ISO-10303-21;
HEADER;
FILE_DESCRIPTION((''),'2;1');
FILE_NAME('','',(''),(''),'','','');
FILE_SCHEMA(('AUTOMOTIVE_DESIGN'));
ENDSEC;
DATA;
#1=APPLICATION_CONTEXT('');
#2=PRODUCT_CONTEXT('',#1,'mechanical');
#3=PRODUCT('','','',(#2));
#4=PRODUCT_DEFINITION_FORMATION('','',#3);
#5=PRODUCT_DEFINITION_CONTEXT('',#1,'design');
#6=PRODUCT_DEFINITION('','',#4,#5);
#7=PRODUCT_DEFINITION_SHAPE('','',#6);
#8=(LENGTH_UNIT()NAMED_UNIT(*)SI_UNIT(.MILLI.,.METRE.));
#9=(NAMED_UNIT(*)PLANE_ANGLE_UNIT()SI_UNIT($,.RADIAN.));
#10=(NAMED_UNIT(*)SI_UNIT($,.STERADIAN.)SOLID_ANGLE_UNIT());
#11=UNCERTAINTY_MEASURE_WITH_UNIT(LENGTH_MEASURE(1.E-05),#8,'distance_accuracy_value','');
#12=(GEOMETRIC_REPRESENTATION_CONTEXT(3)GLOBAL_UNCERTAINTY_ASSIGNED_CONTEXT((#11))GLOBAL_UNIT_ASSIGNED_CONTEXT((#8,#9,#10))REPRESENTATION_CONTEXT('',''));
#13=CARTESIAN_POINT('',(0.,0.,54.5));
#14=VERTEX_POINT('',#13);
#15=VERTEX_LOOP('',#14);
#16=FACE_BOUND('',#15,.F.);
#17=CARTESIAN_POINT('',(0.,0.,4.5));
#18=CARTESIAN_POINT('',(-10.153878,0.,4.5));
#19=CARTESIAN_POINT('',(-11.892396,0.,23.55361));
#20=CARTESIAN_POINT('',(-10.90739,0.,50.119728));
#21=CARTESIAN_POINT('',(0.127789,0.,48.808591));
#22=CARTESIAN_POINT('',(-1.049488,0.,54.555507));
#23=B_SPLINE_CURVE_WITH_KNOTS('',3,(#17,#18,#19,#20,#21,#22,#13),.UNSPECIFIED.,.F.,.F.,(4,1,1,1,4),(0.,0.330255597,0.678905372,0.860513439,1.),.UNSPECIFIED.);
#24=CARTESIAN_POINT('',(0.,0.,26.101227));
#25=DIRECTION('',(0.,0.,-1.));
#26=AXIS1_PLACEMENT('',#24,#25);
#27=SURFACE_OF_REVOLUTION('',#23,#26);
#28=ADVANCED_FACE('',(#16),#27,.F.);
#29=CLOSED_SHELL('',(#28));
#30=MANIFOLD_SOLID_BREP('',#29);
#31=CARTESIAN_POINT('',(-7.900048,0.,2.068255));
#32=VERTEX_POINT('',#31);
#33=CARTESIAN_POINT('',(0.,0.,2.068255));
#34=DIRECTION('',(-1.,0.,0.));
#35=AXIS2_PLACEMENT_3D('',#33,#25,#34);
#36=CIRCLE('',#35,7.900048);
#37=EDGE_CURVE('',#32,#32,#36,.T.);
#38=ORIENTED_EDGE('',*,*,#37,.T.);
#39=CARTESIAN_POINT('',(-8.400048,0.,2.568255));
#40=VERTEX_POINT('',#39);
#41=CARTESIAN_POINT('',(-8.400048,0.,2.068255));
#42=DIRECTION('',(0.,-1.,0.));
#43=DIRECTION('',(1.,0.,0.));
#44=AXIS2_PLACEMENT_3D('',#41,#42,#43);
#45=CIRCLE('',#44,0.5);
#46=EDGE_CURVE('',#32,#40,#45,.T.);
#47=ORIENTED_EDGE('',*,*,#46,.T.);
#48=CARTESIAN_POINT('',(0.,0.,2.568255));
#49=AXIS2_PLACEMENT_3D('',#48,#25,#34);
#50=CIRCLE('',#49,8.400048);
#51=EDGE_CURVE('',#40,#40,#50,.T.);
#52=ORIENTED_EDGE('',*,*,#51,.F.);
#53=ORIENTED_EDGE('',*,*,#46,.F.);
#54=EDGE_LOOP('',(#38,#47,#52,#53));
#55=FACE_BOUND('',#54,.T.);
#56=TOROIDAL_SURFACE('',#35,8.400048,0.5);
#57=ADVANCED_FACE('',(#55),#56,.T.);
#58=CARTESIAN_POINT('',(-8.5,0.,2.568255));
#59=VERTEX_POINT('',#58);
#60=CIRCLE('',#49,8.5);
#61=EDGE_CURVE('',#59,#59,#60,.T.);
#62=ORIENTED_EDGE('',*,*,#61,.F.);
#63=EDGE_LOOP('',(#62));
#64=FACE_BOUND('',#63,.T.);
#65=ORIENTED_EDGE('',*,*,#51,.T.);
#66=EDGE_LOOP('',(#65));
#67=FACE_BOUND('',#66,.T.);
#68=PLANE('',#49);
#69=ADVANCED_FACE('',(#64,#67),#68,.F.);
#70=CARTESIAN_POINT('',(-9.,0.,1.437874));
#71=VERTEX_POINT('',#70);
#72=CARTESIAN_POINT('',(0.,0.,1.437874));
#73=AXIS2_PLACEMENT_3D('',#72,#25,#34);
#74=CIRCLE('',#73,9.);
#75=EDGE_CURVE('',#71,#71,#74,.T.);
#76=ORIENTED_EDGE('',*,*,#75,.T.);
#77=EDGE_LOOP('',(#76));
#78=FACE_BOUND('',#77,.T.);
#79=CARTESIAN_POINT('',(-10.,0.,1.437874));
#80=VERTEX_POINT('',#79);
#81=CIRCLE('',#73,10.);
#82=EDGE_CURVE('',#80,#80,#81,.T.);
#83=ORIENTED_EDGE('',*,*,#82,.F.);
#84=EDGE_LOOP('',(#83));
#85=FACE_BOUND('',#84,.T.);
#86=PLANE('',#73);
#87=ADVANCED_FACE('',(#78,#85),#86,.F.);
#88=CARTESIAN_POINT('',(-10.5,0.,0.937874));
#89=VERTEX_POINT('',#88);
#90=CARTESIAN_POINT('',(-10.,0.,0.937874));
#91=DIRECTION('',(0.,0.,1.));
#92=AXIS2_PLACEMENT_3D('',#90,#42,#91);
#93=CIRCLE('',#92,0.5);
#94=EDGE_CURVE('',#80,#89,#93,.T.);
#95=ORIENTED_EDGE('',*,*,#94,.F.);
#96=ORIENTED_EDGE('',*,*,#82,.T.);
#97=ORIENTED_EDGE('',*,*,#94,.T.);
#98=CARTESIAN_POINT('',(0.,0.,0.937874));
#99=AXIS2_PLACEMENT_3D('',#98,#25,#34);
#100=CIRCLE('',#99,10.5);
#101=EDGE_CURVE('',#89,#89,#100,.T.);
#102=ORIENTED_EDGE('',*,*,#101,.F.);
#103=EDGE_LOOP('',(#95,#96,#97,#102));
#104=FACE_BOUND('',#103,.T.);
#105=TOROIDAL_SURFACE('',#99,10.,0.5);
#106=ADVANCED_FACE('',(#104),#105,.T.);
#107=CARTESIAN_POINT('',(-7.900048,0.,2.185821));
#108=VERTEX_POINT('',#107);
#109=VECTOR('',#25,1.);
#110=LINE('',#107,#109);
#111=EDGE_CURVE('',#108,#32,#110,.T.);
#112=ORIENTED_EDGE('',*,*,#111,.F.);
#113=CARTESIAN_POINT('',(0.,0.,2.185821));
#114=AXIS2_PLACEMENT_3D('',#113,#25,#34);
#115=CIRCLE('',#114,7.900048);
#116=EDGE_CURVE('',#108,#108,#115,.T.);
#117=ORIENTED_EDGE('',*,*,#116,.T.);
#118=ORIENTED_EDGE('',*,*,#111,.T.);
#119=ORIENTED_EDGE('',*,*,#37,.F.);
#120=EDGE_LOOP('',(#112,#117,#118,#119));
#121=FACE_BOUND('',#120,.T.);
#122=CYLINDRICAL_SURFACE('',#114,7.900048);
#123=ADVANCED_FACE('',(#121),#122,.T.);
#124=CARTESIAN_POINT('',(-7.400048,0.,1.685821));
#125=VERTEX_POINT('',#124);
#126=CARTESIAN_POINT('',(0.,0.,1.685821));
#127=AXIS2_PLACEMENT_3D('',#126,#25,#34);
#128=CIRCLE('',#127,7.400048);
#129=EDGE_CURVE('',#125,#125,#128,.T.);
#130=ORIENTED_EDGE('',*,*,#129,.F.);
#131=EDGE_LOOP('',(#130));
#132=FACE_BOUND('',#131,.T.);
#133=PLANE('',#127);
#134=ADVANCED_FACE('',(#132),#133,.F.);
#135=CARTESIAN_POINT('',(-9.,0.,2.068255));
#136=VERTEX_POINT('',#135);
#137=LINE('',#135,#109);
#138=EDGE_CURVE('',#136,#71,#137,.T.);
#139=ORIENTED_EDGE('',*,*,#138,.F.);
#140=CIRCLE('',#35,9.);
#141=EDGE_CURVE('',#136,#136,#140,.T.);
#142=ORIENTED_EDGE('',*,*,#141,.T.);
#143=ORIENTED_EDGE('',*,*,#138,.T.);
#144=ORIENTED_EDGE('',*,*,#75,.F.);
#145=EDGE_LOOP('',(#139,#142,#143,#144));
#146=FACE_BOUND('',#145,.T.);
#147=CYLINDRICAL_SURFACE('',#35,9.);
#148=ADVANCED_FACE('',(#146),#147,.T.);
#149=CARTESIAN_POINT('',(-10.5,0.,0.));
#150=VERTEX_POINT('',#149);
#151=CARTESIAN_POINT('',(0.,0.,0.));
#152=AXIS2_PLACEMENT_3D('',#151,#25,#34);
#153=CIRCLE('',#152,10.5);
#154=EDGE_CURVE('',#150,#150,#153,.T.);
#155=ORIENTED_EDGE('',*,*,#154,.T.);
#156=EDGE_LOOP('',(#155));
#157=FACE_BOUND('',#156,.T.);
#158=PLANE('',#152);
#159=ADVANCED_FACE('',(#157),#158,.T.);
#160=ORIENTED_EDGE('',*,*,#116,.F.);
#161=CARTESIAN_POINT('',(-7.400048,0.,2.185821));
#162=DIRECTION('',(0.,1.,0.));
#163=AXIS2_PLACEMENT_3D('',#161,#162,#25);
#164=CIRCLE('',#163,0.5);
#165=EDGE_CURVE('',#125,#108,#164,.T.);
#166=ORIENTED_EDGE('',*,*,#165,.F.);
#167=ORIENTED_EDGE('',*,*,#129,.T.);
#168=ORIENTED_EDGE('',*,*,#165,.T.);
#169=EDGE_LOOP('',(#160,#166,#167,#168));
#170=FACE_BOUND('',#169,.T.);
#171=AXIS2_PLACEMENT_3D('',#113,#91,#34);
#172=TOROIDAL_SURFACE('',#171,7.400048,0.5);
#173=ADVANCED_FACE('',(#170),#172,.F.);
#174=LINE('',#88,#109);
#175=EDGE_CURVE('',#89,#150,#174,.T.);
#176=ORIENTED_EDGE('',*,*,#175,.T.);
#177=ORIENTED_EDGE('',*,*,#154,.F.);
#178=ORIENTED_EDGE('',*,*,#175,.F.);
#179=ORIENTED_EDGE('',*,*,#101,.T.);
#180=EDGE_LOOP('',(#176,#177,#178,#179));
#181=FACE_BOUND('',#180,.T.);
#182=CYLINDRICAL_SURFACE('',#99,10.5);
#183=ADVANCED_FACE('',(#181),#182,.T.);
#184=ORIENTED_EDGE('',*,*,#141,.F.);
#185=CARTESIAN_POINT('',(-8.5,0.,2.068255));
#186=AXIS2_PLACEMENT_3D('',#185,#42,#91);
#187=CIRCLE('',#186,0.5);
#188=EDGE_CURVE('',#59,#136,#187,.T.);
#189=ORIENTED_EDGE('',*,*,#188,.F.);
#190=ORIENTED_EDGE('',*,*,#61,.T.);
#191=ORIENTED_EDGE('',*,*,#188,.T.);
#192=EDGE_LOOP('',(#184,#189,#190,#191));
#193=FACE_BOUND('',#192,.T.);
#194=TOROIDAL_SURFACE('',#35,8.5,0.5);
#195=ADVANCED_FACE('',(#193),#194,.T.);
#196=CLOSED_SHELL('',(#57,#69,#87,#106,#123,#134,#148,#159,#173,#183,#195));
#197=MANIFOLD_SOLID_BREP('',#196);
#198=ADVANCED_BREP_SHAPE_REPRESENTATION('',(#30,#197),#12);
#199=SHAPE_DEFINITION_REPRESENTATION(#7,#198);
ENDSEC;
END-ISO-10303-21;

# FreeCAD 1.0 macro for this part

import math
import FreeCAD as App
import Part
import Sketcher
from FreeCAD import Vector

doc = App.newDocument("Part")
params = doc.addObject("Spreadsheet::Sheet", "Params")
for row, (alias, value) in enumerate([
    ("revolution_angle", "360 deg"),
    ("sketch2_radius", "0.5 mm"),
    ("sketch2_width", "1 mm"),
    ("sketch2_width2", "10.5 mm"),
    ("revolution2_angle", "360 deg"),
], start=1):
    params.set(f"A{row}", alias)
    params.set(f"B{row}", "=" + value)
    params.setAlias(f"B{row}", alias)

body = doc.addObject("PartDesign::Body", "Body")

sketch1 = body.newObject("Sketcher::SketchObject", "Sketch")
sketch1.AttachmentSupport = (doc.getObject("XZ_Plane"), [""])
sketch1.MapMode = "FlatFace"
sketch1.addGeometry([
    Part.BSplineCurve([Vector(0, 4.5, 0), Vector(-10.153878, 4.5, 0), Vector(-11.892396, 23.55361, 0), Vector(-10.90739, 50.119728, 0), Vector(0.127789, 48.808591, 0), Vector(-1.049488, 54.555507, 0), Vector(0, 54.5, 0)], [4, 1, 1, 1, 4], [0, 0.330255597, 0.678905372, 0.860513439, 1], False, 3, [1, 1, 1, 1, 1, 1, 1], False),
    Part.LineSegment(Vector(0, 4.5, 0), Vector(0, 54.5, 0)),
], False)
sketch1.addConstraint([
    Sketcher.Constraint("Block", 0),
    Sketcher.Constraint("Coincident", 0, 1, 1, 1),
    Sketcher.Constraint("Coincident", 1, 2, 0, 2),
])
revolution = body.newObject("PartDesign::Revolution", "Revolution")
revolution.Profile = sketch1
revolution.ReferenceAxis = (sketch1, ["V_Axis"])
revolution.setExpression("Angle", "Params.revolution_angle")
body2 = doc.addObject("PartDesign::Body", "Body001")

sketch2 = body2.newObject("Sketcher::SketchObject", "Sketch001")
sketch2.AttachmentSupport = (doc.getObject("XZ_Plane001"), [""])
sketch2.MapMode = "FlatFace"
sketch2.addGeometry([
    Part.LineSegment(Vector(0, 0, 0), Vector(0, 1.69, 0)),
    Part.LineSegment(Vector(0, 1.69, 0), Vector(-7.4, 1.69, 0)),
    Part.ArcOfCircle(Part.Circle(Vector(-7.4, 2.19, 0), Vector(0, 0, 1), 0.5), math.radians(180), math.radians(270)),
    Part.LineSegment(Vector(-7.9, 2.19, 0), Vector(-7.9, 2.07, 0)),
    Part.ArcOfCircle(Part.Circle(Vector(-8.4, 2.07, 0), Vector(0, 0, 1), 0.5), math.radians(0), math.radians(90)),
    Part.LineSegment(Vector(-8.4, 2.57, 0), Vector(-8.5, 2.57, 0)),
    Part.ArcOfCircle(Part.Circle(Vector(-8.5, 2.07, 0), Vector(0, 0, 1), 0.5), math.radians(90), math.radians(180)),
    Part.LineSegment(Vector(-9, 2.07, 0), Vector(-9, 1.44, 0)),
    Part.LineSegment(Vector(-9, 1.44, 0), Vector(-10, 1.44, 0)),
    Part.ArcOfCircle(Part.Circle(Vector(-10, 0.94, 0), Vector(0, 0, 1), 0.5), math.radians(90), math.radians(180)),
    Part.LineSegment(Vector(-10.5, 0.94, 0), Vector(-10.5, 0, 0)),
    Part.LineSegment(Vector(-10.5, 0, 0), Vector(0, 0, 0)),
], False)
sketch2.addConstraint([
    Sketcher.Constraint("Coincident", 0, 2, 1, 1),
    Sketcher.Constraint("Tangent", 1, 2, 2, 2),
    Sketcher.Constraint("Tangent", 2, 1, 3, 1),
    Sketcher.Constraint("Tangent", 3, 2, 4, 1),
    Sketcher.Constraint("Tangent", 4, 2, 5, 1),
    Sketcher.Constraint("Tangent", 5, 2, 6, 1),
    Sketcher.Constraint("Tangent", 6, 2, 7, 1),
    Sketcher.Constraint("Coincident", 7, 2, 8, 1),
    Sketcher.Constraint("Tangent", 8, 2, 9, 1),
    Sketcher.Constraint("Tangent", 9, 2, 10, 1),
    Sketcher.Constraint("Coincident", 10, 2, 11, 1),
    Sketcher.Constraint("Coincident", 11, 2, 0, 1),
    Sketcher.Constraint("Vertical", 0),
    Sketcher.Constraint("Horizontal", 1),
    Sketcher.Constraint("Vertical", 3),
    Sketcher.Constraint("Horizontal", 5),
    Sketcher.Constraint("Vertical", 7),
    Sketcher.Constraint("Horizontal", 8),
    Sketcher.Constraint("Vertical", 10),
    Sketcher.Constraint("Horizontal", 11),
    Sketcher.Constraint("Coincident", 11, 2, -1, 1),
    Sketcher.Constraint("Equal", 2, 4),
    Sketcher.Constraint("Equal", 4, 6),
    Sketcher.Constraint("Equal", 6, 9),
    Sketcher.Constraint("Radius", 2, 0.5),
    Sketcher.Constraint("DistanceX", 8, 2, 8, 1, 1.0),
    Sketcher.Constraint("DistanceX", 11, 1, 11, 2, 10.5),
    Sketcher.Constraint("DistanceY", 0, 1, 0, 2, 1.685821),
    Sketcher.Constraint("DistanceY", 7, 2, 7, 1, 0.630381),
    Sketcher.Constraint("DistanceX", 1, 2, 1, 1, 7.400048),
    Sketcher.Constraint("DistanceY", 3, 2, 3, 1, 0.117566),
])
sketch2.setExpression("Constraints[24]", "Params.sketch2_radius")
sketch2.setExpression("Constraints[25]", "Params.sketch2_width")
sketch2.setExpression("Constraints[26]", "Params.sketch2_width2")
revolution2 = body2.newObject("PartDesign::Revolution", "Revolution001")
revolution2.Profile = sketch2
revolution2.ReferenceAxis = (sketch2, ["V_Axis"])
revolution2.setExpression("Angle", "Params.revolution2_angle")

doc.recompute()
